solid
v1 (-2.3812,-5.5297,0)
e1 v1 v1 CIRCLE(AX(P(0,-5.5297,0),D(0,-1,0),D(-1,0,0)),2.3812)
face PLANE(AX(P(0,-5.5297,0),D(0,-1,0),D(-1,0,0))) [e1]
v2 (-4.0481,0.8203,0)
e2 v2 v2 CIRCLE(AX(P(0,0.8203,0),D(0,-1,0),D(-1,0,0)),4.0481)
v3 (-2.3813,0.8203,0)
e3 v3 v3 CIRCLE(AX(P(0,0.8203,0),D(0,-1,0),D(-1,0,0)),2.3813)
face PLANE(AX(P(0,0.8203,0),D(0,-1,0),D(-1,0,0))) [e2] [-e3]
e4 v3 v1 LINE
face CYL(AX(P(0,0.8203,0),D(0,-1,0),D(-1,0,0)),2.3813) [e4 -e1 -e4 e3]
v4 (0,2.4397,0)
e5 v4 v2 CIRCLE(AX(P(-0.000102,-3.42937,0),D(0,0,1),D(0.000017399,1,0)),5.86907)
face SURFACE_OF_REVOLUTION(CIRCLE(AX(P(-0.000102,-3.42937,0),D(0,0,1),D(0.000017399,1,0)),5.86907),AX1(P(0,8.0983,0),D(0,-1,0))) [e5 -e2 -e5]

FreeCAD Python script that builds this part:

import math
import FreeCAD as App
import Part
import Sketcher
from FreeCAD import Vector
Q = App.Units.Quantity

doc = App.newDocument("Part")
body = doc.addObject("PartDesign::Body", "Body")

sketch1 = body.newObject("Sketcher::SketchObject", "Sketch")
sketch1.AttachmentSupport = (doc.getObject("XY_Plane"), [""])
sketch1.MapMode = "FlatFace"
sketch1.addGeometry([
    Part.LineSegment(Vector(0, -5.5, 0), Vector(0, 2.4, 0)),
    Part.ArcOfCircle(Part.Circle(Vector(0, -3.4, 0), Vector(0, 0, 1), 5.9), math.radians(90), math.radians(134)),
    Part.LineSegment(Vector(-4, 0.8, 0), Vector(-2.4, 0.8, 0)),
    Part.LineSegment(Vector(-2.4, 0.8, 0), Vector(-2.4, -5.5, 0)),
    Part.LineSegment(Vector(-2.4, -5.5, 0), Vector(0, -5.5, 0)),
], False)
sketch1.addConstraint([
    Sketcher.Constraint("Coincident", 0, 2, 1, 1),
    Sketcher.Constraint("Coincident", 1, 2, 2, 1),
    Sketcher.Constraint("Coincident", 2, 2, 3, 1),
    Sketcher.Constraint("Coincident", 3, 2, 4, 1),
    Sketcher.Constraint("Coincident", 4, 2, 0, 1),
    Sketcher.Constraint("Vertical", 0),
    Sketcher.Constraint("Horizontal", 2),
    Sketcher.Constraint("Vertical", 3),
    Sketcher.Constraint("Horizontal", 4),
    Sketcher.Constraint("PointOnObject", 1, 3, -2),
    Sketcher.Constraint("PointOnObject", 0, 2, -2),
    Sketcher.Constraint("DistanceY", 3, 2, 3, 1, Q("0.25 in")),
    Sketcher.Constraint("DistanceX", 4, 1, 4, 2, Q("0.093748 in")),
    Sketcher.Constraint("DistanceX", 1, 2, -1, 1, 4.0482),
    Sketcher.Constraint("Radius", 1, 5.8696),
    Sketcher.Constraint("DistanceY", -1, 1, 1, 2, Q("0.0323 in")),
])
revolution = body.newObject("PartDesign::Revolution", "Revolution")
revolution.Profile = sketch1
revolution.ReferenceAxis = (sketch1, ["V_Axis"])
revolution.Angle = 360

doc.recompute()
